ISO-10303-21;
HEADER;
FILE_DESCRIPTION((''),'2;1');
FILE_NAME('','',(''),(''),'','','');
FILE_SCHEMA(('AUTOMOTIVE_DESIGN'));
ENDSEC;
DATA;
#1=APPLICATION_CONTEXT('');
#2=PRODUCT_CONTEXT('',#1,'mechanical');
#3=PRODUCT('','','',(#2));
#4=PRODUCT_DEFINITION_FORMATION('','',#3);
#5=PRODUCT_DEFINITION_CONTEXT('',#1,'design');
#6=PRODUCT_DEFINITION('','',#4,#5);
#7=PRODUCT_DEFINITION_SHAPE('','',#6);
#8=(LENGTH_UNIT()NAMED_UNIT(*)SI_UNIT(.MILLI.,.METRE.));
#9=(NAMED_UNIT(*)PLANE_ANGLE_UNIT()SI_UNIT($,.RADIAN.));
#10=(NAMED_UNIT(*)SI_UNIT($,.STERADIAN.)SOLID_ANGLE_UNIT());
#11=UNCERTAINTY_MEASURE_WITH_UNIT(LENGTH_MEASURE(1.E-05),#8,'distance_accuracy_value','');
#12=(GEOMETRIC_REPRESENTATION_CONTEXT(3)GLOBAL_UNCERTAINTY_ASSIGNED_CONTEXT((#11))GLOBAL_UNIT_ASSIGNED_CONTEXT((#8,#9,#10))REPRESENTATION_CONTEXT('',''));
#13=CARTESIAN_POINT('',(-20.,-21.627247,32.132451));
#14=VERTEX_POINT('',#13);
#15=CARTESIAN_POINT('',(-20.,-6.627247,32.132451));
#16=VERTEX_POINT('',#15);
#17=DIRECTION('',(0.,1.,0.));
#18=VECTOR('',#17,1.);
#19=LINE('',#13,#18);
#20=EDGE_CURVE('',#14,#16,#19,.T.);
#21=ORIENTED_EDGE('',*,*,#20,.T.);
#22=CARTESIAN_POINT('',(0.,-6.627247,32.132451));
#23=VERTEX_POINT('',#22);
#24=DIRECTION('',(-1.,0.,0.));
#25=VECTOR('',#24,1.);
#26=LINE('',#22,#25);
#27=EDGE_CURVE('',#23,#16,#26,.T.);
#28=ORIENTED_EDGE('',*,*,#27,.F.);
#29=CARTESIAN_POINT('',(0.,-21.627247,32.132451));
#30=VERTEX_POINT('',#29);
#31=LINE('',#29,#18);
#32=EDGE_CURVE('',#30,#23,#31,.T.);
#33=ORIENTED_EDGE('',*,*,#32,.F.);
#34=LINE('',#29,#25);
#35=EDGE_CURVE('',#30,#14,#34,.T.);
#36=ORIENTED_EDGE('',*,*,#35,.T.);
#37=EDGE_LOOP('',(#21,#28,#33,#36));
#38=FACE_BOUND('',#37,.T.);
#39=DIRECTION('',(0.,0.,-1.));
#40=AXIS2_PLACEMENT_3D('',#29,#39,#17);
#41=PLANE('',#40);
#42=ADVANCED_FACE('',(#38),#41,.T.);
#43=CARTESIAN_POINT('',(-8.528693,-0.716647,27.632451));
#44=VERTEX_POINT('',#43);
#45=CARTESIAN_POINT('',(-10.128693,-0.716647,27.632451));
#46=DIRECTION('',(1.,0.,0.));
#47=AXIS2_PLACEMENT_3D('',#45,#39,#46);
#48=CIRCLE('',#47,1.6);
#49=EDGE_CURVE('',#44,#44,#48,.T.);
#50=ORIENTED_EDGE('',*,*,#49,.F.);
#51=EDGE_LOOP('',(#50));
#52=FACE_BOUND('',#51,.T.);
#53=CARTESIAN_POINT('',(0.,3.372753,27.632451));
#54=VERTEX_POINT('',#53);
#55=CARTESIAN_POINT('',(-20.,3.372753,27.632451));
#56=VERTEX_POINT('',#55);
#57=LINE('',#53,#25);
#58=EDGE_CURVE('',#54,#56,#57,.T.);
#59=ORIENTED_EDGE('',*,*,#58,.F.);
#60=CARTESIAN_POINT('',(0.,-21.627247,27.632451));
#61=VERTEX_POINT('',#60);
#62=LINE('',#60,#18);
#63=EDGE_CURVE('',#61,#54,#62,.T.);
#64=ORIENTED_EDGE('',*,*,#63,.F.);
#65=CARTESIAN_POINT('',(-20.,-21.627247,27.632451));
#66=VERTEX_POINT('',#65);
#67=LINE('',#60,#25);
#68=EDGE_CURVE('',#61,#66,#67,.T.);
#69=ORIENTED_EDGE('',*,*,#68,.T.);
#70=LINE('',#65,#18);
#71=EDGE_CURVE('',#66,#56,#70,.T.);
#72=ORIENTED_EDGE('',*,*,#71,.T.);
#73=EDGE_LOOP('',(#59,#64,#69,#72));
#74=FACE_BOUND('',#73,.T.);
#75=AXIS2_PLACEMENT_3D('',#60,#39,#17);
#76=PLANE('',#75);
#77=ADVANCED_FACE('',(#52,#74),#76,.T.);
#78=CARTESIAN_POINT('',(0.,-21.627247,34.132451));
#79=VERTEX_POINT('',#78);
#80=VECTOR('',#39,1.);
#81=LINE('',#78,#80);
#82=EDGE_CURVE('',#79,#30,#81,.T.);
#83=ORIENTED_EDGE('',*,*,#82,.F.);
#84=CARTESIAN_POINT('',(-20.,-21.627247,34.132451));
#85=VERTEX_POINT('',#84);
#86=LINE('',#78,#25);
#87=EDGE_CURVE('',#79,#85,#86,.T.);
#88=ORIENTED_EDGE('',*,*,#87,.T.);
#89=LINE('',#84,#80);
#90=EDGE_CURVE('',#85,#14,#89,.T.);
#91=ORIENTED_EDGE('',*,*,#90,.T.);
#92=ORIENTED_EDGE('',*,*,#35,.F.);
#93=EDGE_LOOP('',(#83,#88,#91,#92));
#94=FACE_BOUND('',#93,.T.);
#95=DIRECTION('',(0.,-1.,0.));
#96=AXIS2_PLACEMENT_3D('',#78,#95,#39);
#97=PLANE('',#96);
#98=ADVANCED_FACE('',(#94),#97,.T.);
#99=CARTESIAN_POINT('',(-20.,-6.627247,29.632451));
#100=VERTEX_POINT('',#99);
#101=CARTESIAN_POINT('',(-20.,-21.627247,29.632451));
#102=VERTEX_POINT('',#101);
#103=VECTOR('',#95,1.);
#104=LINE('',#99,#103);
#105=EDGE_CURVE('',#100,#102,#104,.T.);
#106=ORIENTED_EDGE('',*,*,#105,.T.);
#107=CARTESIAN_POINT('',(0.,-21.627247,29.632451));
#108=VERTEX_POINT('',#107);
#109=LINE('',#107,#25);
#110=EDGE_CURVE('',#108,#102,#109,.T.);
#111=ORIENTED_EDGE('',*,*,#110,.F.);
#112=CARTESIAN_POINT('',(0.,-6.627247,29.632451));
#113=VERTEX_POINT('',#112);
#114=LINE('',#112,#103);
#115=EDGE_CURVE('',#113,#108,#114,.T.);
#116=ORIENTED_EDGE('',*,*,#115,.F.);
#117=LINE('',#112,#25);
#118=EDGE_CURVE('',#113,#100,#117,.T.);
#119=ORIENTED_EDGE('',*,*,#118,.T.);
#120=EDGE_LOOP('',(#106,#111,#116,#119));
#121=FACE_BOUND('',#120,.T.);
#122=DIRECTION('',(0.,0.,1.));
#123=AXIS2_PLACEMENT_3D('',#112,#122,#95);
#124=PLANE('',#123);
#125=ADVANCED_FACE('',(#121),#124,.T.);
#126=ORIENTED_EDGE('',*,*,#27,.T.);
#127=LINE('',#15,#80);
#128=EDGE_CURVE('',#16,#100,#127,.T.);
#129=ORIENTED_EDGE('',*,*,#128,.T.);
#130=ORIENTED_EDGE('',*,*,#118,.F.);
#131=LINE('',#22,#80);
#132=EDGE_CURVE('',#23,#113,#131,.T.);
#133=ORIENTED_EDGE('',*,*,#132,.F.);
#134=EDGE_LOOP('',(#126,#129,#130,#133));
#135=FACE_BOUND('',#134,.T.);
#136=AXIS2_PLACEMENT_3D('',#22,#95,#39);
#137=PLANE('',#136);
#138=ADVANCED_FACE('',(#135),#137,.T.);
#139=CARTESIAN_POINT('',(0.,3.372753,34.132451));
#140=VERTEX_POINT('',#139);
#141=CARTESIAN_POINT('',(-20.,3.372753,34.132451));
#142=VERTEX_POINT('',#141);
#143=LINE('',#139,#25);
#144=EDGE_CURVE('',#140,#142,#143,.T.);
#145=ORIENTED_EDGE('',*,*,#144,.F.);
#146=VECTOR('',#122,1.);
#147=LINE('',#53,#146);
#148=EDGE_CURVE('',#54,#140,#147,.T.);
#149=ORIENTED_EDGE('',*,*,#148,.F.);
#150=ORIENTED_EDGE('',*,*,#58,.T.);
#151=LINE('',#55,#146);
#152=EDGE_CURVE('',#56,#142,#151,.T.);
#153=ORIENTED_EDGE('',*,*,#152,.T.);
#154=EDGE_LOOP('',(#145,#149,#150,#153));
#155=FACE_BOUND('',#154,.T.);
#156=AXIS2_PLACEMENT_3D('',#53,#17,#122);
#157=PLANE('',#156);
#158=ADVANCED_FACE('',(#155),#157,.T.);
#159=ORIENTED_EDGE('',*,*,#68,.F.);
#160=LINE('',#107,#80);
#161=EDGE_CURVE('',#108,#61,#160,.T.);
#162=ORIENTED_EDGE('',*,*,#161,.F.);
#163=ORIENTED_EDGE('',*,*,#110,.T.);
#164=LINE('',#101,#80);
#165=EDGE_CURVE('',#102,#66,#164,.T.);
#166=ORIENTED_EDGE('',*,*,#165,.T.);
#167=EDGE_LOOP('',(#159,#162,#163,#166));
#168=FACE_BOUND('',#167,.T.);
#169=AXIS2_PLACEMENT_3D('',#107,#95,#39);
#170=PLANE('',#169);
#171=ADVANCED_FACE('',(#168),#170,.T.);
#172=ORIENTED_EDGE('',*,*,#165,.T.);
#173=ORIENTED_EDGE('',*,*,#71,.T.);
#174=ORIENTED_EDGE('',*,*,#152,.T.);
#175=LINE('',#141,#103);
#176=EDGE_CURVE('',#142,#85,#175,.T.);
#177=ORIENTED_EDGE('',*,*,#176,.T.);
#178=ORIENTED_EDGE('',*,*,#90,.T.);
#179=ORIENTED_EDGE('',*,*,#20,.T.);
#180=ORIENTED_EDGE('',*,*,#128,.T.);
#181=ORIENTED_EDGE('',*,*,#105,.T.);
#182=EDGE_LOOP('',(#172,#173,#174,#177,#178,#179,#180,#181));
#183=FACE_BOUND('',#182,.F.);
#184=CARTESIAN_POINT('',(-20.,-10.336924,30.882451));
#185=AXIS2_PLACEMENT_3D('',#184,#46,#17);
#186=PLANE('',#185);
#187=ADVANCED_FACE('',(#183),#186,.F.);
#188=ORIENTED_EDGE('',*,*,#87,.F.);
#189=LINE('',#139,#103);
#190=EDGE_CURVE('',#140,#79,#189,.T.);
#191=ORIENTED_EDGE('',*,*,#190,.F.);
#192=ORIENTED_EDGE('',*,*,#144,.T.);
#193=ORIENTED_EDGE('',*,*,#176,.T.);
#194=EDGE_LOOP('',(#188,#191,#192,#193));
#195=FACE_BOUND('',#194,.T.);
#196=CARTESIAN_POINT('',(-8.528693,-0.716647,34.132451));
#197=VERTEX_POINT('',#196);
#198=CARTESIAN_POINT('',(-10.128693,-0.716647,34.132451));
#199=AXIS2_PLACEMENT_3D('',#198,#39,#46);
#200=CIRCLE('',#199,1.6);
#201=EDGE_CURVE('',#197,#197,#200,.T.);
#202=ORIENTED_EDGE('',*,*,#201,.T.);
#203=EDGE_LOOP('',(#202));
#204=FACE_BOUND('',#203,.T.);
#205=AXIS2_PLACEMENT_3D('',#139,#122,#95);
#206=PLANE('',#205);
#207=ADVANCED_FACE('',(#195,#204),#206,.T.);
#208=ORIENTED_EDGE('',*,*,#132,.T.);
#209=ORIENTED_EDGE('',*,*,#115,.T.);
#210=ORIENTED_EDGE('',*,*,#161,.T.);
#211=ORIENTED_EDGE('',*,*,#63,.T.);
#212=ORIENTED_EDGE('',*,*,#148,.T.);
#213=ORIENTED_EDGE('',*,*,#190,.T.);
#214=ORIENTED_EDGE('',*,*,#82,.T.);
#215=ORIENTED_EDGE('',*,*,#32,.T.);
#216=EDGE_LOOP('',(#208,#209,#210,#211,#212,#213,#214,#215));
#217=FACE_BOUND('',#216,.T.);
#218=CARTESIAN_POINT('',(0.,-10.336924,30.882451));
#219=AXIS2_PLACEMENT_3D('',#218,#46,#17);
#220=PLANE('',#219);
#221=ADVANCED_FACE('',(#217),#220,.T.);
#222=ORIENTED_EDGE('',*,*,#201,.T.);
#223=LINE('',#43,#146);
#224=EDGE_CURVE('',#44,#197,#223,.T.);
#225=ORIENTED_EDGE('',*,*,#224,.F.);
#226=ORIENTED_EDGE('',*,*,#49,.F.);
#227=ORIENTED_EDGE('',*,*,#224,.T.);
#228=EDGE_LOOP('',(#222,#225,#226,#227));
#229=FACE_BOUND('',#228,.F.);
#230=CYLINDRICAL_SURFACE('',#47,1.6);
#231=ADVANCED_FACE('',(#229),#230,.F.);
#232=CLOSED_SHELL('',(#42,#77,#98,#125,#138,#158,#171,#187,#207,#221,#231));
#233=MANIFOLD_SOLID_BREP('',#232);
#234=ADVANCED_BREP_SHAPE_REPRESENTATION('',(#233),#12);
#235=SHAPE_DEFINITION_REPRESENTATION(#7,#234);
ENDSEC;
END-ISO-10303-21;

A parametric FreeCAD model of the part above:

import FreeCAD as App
import Part
import Sketcher

doc = App.newDocument("Part")
body = doc.addObject("PartDesign::Body", "Body")

# Sketch on YZ plane
sketch1 = body.newObject("Sketcher::SketchObject", "Sketch")
sketch1.AttachmentSupport = (doc.getObject("YZ_Plane"), [""])
sketch1.MapMode = "FlatFace"
sketch1.addGeometry(Part.LineSegment(App.Vector(3.4, 34.1, 0), App.Vector(-21.6, 34.1, 0)), False)
sketch1.addGeometry(Part.LineSegment(App.Vector(-21.6, 34.1, 0), App.Vector(-21.6, 32.1, 0)), False)
sketch1.addGeometry(Part.LineSegment(App.Vector(-21.6, 32.1, 0), App.Vector(-6.6, 32.1, 0)), False)
sketch1.addGeometry(Part.LineSegment(App.Vector(-6.6, 32.1, 0), App.Vector(-6.6, 29.6, 0)), False)
sketch1.addGeometry(Part.LineSegment(App.Vector(-6.6, 29.6, 0), App.Vector(-21.6, 29.6, 0)), False)
sketch1.addGeometry(Part.LineSegment(App.Vector(-21.6, 29.6, 0), App.Vector(-21.6, 27.6, 0)), False)
sketch1.addGeometry(Part.LineSegment(App.Vector(-21.6, 27.6, 0), App.Vector(3.4, 27.6, 0)), False)
sketch1.addGeometry(Part.LineSegment(App.Vector(3.4, 27.6, 0), App.Vector(3.4, 34.1, 0)), False)
sketch1.addConstraint(Sketcher.Constraint("Coincident", 0, 2, 1, 1))
sketch1.addConstraint(Sketcher.Constraint("Coincident", 1, 2, 2, 1))
sketch1.addConstraint(Sketcher.Constraint("Coincident", 2, 2, 3, 1))
sketch1.addConstraint(Sketcher.Constraint("Coincident", 3, 2, 4, 1))
sketch1.addConstraint(Sketcher.Constraint("Coincident", 4, 2, 5, 1))
sketch1.addConstraint(Sketcher.Constraint("Coincident", 5, 2, 6, 1))
sketch1.addConstraint(Sketcher.Constraint("Coincident", 6, 2, 7, 1))
sketch1.addConstraint(Sketcher.Constraint("Coincident", 7, 2, 0, 1))
sketch1.addConstraint(Sketcher.Constraint("Horizontal", 0))
sketch1.addConstraint(Sketcher.Constraint("Vertical", 1))
sketch1.addConstraint(Sketcher.Constraint("Horizontal", 2))
sketch1.addConstraint(Sketcher.Constraint("Vertical", 3))
sketch1.addConstraint(Sketcher.Constraint("Horizontal", 4))
sketch1.addConstraint(Sketcher.Constraint("Vertical", 5))
sketch1.addConstraint(Sketcher.Constraint("Horizontal", 6))
sketch1.addConstraint(Sketcher.Constraint("Vertical", 7))
sketch1.addConstraint(Sketcher.Constraint("Vertical", 1, 2, 4, 2))
sketch1.addConstraint(Sketcher.Constraint("Equal", 1, 5))
sketch1.addConstraint(Sketcher.Constraint("DistanceX", 0, 2, 0, 1, 25.0))
sketch1.addConstraint(Sketcher.Constraint("DistanceX", 2, 1, 2, 2, 15.0))
sketch1.addConstraint(Sketcher.Constraint("DistanceY", 1, 2, 1, 1, 2.0))
sketch1.addConstraint(Sketcher.Constraint("DistanceY", 3, 2, 3, 1, 2.5))
sketch1.addConstraint(Sketcher.Constraint("DistanceY", -1, 1, 0, 2, 34.132451))
sketch1.addConstraint(Sketcher.Constraint("DistanceX", 0, 2, -1, 1, 21.627247))
pad1 = body.newObject("PartDesign::Pad", "Pad")
pad1.Profile = sketch1
pad1.Length = 20
pad1.Reversed = True

# Sketch on XY plane
sketch2 = body.newObject("Sketcher::SketchObject", "Sketch001")
sketch2.AttachmentSupport = (doc.getObject("XY_Plane"), [""])
sketch2.MapMode = "FlatFace"
sketch2.AttachmentOffset = App.Placement(App.Vector(0, 0, 27.632451), App.Rotation())
sketch2.addGeometry(Part.Circle(App.Vector(-10.1, -0.7, 0), App.Vector(0, 0, 1), 1.6), False)
sketch2.addConstraint(Sketcher.Constraint("Diameter", 0, 3.2))
sketch2.addConstraint(Sketcher.Constraint("DistanceX", 0, 3, -1, 1, 10.128693))
sketch2.addConstraint(Sketcher.Constraint("DistanceY", 0, 3, -1, 1, 0.716647))
pocket1 = body.newObject("PartDesign::Pocket", "Pocket")
pocket1.Profile = sketch2
pocket1.Length = 6.5
pocket1.Reversed = True

doc.recompute()
